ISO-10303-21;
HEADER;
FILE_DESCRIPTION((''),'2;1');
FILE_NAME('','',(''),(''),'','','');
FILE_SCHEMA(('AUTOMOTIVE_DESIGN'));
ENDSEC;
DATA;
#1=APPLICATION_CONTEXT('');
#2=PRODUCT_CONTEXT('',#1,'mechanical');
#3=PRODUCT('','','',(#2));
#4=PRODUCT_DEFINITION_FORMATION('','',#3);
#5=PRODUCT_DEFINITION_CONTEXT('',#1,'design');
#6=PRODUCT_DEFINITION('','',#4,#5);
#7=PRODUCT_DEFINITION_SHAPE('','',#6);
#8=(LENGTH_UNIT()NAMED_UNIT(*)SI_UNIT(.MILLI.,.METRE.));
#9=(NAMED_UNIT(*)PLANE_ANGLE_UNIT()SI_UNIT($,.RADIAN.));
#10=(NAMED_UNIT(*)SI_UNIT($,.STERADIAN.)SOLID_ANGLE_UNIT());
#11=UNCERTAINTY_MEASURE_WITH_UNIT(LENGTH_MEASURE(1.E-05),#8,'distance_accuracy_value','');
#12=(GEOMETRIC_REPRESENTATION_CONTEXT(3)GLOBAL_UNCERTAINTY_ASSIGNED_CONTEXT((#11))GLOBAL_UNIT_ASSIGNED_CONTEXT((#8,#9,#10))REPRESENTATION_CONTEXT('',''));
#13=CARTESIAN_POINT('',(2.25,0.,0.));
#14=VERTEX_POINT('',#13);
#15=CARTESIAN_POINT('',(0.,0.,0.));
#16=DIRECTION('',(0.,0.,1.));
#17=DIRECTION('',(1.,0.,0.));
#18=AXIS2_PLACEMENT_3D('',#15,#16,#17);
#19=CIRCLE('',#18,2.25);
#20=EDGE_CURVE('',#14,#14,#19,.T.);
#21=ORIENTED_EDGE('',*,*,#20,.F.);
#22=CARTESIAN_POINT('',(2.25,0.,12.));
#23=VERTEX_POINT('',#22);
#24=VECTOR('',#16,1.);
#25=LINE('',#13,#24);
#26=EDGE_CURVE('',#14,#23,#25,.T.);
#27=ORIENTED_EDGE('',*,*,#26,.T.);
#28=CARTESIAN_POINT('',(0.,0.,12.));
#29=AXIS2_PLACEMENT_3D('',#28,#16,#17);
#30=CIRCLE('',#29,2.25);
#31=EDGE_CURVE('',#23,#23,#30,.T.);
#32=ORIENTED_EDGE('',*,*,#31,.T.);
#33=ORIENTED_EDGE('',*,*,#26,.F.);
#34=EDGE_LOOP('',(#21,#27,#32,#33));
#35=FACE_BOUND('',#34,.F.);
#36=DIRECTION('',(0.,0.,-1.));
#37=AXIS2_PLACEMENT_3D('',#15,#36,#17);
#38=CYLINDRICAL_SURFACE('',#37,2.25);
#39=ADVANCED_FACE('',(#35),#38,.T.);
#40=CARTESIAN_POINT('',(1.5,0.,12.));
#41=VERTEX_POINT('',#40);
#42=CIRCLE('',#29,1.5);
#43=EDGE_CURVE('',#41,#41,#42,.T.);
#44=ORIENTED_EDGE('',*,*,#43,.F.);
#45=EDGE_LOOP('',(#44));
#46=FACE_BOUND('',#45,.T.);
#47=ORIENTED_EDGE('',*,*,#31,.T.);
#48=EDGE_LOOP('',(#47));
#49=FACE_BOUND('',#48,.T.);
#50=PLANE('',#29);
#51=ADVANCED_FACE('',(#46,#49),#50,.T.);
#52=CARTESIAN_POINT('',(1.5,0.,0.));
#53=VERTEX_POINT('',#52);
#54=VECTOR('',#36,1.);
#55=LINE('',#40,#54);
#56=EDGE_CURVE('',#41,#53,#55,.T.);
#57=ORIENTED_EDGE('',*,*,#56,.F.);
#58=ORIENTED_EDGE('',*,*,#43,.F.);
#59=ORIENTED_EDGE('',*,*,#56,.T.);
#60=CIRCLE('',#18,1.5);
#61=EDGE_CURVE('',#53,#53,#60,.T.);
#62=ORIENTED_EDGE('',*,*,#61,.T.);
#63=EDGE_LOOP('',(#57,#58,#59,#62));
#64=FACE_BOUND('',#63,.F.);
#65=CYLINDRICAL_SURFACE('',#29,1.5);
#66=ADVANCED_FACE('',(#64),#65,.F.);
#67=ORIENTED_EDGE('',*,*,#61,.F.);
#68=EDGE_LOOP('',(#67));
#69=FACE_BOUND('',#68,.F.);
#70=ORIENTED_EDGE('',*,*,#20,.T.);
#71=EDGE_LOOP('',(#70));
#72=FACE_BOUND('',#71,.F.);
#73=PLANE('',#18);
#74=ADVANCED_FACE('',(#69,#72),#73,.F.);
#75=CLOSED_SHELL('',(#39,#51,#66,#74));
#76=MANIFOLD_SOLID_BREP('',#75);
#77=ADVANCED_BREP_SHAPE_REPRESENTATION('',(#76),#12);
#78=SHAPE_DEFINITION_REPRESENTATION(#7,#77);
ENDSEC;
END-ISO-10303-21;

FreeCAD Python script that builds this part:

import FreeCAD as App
import Part
import Sketcher
Q = App.Units.Quantity

doc = App.newDocument("Part")
body = doc.addObject("PartDesign::Body", "Body")

sketch1 = body.newObject("Sketcher::SketchObject", "Sketch")
sketch1.AttachmentSupport = (doc.getObject("XY_Plane"), [""])
sketch1.MapMode = "FlatFace"
sketch1.addGeometry(Part.Circle(App.Vector(0, 0, 0), App.Vector(0, 0, 1), 2.2), False)
sketch1.addConstraint([
    Sketcher.Constraint("Coincident", 0, 3, -1, 1),
    Sketcher.Constraint("Diameter", 0, Q("4.5 mm")),
])
pad1 = body.newObject("PartDesign::Pad", "Pad")
pad1.Profile = sketch1
pad1.Length = 12

sketch2 = body.newObject("Sketcher::SketchObject", "Sketch001")
sketch2.AttachmentSupport = (doc.getObject("XY_Plane"), [""])
sketch2.MapMode = "FlatFace"
sketch2.AttachmentOffset = App.Placement(App.Vector(0, 0, 12), App.Rotation())
sketch2.addGeometry(Part.Circle(App.Vector(0, 0, 0), App.Vector(0, 0, 1), 1.5), False)
sketch2.addConstraint([
    Sketcher.Constraint("Coincident", 0, 3, -1, 1),
    Sketcher.Constraint("Diameter", 0, Q("3 mm")),
])
pocket1 = body.newObject("PartDesign::Pocket", "Pocket")
pocket1.Profile = sketch2
pocket1.Length = 12

doc.recompute()
